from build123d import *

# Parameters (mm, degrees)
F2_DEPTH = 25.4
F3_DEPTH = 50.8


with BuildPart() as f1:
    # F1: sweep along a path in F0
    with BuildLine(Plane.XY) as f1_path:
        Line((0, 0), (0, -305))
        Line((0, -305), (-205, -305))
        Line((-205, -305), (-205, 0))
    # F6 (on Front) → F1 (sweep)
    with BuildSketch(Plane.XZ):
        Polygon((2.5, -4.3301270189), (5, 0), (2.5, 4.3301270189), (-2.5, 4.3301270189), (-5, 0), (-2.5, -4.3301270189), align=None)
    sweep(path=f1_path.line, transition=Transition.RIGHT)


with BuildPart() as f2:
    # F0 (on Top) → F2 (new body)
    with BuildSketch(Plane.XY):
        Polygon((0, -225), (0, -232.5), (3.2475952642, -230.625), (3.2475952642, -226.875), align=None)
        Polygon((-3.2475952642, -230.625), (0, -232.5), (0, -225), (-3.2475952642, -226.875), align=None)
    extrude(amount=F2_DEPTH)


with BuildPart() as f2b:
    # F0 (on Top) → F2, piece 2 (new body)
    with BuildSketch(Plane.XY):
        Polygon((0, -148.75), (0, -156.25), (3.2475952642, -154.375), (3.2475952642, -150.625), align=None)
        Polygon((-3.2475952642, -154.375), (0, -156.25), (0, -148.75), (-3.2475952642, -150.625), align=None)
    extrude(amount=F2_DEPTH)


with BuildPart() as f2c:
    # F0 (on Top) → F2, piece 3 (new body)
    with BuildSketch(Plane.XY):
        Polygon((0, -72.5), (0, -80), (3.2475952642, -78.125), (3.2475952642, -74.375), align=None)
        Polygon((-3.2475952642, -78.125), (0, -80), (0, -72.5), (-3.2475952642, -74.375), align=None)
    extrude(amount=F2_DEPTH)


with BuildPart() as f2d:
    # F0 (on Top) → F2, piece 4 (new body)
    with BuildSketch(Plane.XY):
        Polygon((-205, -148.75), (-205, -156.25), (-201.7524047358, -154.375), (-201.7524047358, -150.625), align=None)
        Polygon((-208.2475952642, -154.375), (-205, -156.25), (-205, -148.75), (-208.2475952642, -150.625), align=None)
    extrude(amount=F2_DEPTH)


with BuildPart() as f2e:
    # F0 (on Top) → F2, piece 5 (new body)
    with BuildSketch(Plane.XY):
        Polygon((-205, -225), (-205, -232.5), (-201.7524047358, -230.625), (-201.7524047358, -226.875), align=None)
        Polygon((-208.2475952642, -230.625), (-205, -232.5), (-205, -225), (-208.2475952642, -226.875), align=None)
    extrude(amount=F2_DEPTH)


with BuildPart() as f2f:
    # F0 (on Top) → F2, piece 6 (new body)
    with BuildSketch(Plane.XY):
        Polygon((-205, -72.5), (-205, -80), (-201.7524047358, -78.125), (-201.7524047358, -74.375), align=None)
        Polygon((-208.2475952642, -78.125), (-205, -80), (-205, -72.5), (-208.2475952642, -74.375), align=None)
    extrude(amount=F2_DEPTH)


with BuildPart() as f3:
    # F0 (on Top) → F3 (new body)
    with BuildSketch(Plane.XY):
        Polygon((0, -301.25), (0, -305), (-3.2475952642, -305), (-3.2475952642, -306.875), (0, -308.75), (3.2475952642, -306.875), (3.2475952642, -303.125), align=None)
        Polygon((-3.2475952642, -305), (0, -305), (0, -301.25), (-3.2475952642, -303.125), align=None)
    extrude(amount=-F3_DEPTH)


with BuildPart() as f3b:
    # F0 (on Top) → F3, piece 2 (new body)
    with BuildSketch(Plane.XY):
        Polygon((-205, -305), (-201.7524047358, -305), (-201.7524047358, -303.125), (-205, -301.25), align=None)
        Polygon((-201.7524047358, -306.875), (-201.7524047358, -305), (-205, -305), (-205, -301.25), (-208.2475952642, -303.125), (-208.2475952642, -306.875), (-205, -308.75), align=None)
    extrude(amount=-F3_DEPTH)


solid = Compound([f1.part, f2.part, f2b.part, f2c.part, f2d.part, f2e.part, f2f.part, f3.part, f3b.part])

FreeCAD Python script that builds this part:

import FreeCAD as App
import Part
import Sketcher

V = App.Vector
Q = App.Units.Quantity


def add_polygon(sketch, points):
    """Adds a closed chain of lines whose ends are joined by coincident constraints."""
    first, n = sketch.GeometryCount, len(points)
    for a, b in zip(points, points[1:] + points[:1]):
        sketch.addGeometry(Part.LineSegment(App.Vector(*a, 0), App.Vector(*b, 0)), False)
    for i in range(n):
        sketch.addConstraint(Sketcher.Constraint("Coincident", first + i, 2, first + (i + 1) % n, 1))

doc = App.newDocument("Part")
body = doc.addObject("PartDesign::Body", "Body")

sketch1 = body.newObject("Sketcher::SketchObject", "Sketch")
sketch1.AttachmentSupport = (doc.getObject("XZ_Plane"), [""])
sketch1.MapMode = "FlatFace"
add_polygon(sketch1, [(2, -4), (5, 0), (2, 4), (-2, 4), (-5, 0), (-2, -4)])
sketch1.addConstraint(Sketcher.Constraint("Horizontal", 2))
sketch1.addConstraint(Sketcher.Constraint("Horizontal", 5))
sketch1.addConstraint(Sketcher.Constraint("Symmetric", 0, 2, 3, 2, -1, 1))
sketch1.addConstraint(Sketcher.Constraint("Symmetric", 1, 2, 4, 2, -1, 1))
sketch1.addConstraint(Sketcher.Constraint("PointOnObject", 0, 2, -1))
sketch1.addConstraint(Sketcher.Constraint("Parallel", 0, 3))
sketch1.addConstraint(Sketcher.Constraint("Vertical", 2, 2, 4, 2))
sketch1.addConstraint(Sketcher.Constraint("DistanceX", 2, 2, 2, 1, 5.0))
sketch1.addConstraint(Sketcher.Constraint("Angle", 0, Q("60 deg")))
sketch1.addConstraint(Sketcher.Constraint("Distance", 0, 5.0))

sketch2 = body.newObject("Sketcher::SketchObject", "Sketch001")
sketch2.AttachmentSupport = (doc.getObject("XY_Plane"), [""])
sketch2.MapMode = "FlatFace"
sketch2.addGeometry(Part.LineSegment(V(0, 0, 0), V(0, -305, 0)), False)
sketch2.addGeometry(Part.LineSegment(V(0, -305, 0), V(-205, -305, 0)), False)
sketch2.addGeometry(Part.LineSegment(V(-205, -305, 0), V(-205, 0, 0)), False)
sketch2.addConstraint(Sketcher.Constraint("Coincident", 0, 2, 1, 1))
sketch2.addConstraint(Sketcher.Constraint("Coincident", 1, 2, 2, 1))
sketch2.addConstraint(Sketcher.Constraint("Vertical", 0))
sketch2.addConstraint(Sketcher.Constraint("Horizontal", 1))
sketch2.addConstraint(Sketcher.Constraint("Vertical", 2))
sketch2.addConstraint(Sketcher.Constraint("Coincident", 0, 1, -1, 1))
sketch2.addConstraint(Sketcher.Constraint("PointOnObject", 2, 2, -1))
sketch2.addConstraint(Sketcher.Constraint("DistanceX", 1, 2, 1, 1, 205.0))
sketch2.addConstraint(Sketcher.Constraint("DistanceY", 0, 2, 0, 1, 305.0))
doc.recompute()

additivepipe = body.newObject("PartDesign::AdditivePipe", "AdditivePipe")
additivepipe.Profile = sketch1
additivepipe.Spine = (sketch2, ["Edge1", "Edge2", "Edge3"])
additivepipe.Transition = "Right corner"
body2 = doc.addObject("PartDesign::Body", "Body001")

sketch3 = body2.newObject("Sketcher::SketchObject", "Sketch002")
sketch3.AttachmentSupport = (doc.getObject("XY_Plane001"), [""])
sketch3.MapMode = "FlatFace"
add_polygon(sketch3, [(0, -232.5), (3.2, -230.6), (3.2, -226.9), (0, -225), (-3.2, -226.9), (-3.2, -230.6)])
sketch3.addConstraint(Sketcher.Constraint("Vertical", 1))
sketch3.addConstraint(Sketcher.Constraint("Vertical", 4))
sketch3.addConstraint(Sketcher.Constraint("Symmetric", 1, 2, 3, 2, -2))
sketch3.addConstraint(Sketcher.Constraint("PointOnObject", 2, 2, -2))
sketch3.addConstraint(Sketcher.Constraint("PointOnObject", 5, 2, -2))
sketch3.addConstraint(Sketcher.Constraint("Parallel", 0, 3))
sketch3.addConstraint(Sketcher.Constraint("Parallel", 2, 5))
sketch3.addConstraint(Sketcher.Constraint("Angle", 0, Q("30 deg")))
sketch3.addConstraint(Sketcher.Constraint("DistanceY", 2, 2, -1, 1, 225.0))
sketch3.addConstraint(Sketcher.Constraint("DistanceY", 1, 1, 1, 2, 3.75))
sketch3.addConstraint(Sketcher.Constraint("DistanceY", 5, 2, -1, 1, 232.5))
pad1 = body2.newObject("PartDesign::Pad", "Pad")
pad1.Profile = sketch3
pad1.Length = 25.4
body3 = doc.addObject("PartDesign::Body", "Body002")

sketch4 = body3.newObject("Sketcher::SketchObject", "Sketch003")
sketch4.AttachmentSupport = (doc.getObject("XY_Plane002"), [""])
sketch4.MapMode = "FlatFace"
add_polygon(sketch4, [(0, -156.2), (3.2, -154.4), (3.2, -150.6), (0, -148.8), (-3.2, -150.6), (-3.2, -154.4)])
sketch4.addConstraint(Sketcher.Constraint("Vertical", 1))
sketch4.addConstraint(Sketcher.Constraint("Vertical", 4))
sketch4.addConstraint(Sketcher.Constraint("Symmetric", 1, 2, 3, 2, -2))
sketch4.addConstraint(Sketcher.Constraint("PointOnObject", 2, 2, -2))
sketch4.addConstraint(Sketcher.Constraint("PointOnObject", 5, 2, -2))
sketch4.addConstraint(Sketcher.Constraint("Parallel", 0, 3))
sketch4.addConstraint(Sketcher.Constraint("Parallel", 2, 5))
sketch4.addConstraint(Sketcher.Constraint("Angle", 0, Q("30 deg")))
sketch4.addConstraint(Sketcher.Constraint("DistanceY", 1, 1, 1, 2, 3.75))
sketch4.addConstraint(Sketcher.Constraint("DistanceY", 5, 2, 2, 2, 7.5))
sketch4.addConstraint(Sketcher.Constraint("DistanceY", 2, 2, -1, 1, 148.75))
pad2 = body3.newObject("PartDesign::Pad", "Pad001")
pad2.Profile = sketch4
pad2.Length = 25.4
body4 = doc.addObject("PartDesign::Body", "Body003")

sketch5 = body4.newObject("Sketcher::SketchObject", "Sketch004")
sketch5.AttachmentSupport = (doc.getObject("XY_Plane003"), [""])
sketch5.MapMode = "FlatFace"
add_polygon(sketch5, [(0, -80), (3.2, -78.1), (3.2, -74.4), (0, -72.5), (-3.2, -74.4), (-3.2, -78.1)])
sketch5.addConstraint(Sketcher.Constraint("Vertical", 1))
sketch5.addConstraint(Sketcher.Constraint("Vertical", 4))
sketch5.addConstraint(Sketcher.Constraint("Symmetric", 1, 2, 3, 2, -2))
sketch5.addConstraint(Sketcher.Constraint("PointOnObject", 2, 2, -2))
sketch5.addConstraint(Sketcher.Constraint("PointOnObject", 5, 2, -2))
sketch5.addConstraint(Sketcher.Constraint("Parallel", 0, 3))
sketch5.addConstraint(Sketcher.Constraint("Parallel", 2, 5))
sketch5.addConstraint(Sketcher.Constraint("Angle", 0, Q("30 deg")))
sketch5.addConstraint(Sketcher.Constraint("DistanceY", 5, 2, -1, 1, 80.0))
sketch5.addConstraint(Sketcher.Constraint("DistanceY", 1, 1, 1, 2, 3.75))
sketch5.addConstraint(Sketcher.Constraint("DistanceY", 2, 2, -1, 1, 72.5))
pad3 = body4.newObject("PartDesign::Pad", "Pad002")
pad3.Profile = sketch5
pad3.Length = 25.4
body5 = doc.addObject("PartDesign::Body", "Body004")

sketch6 = body5.newObject("Sketcher::SketchObject", "Sketch005")
sketch6.AttachmentSupport = (doc.getObject("XY_Plane004"), [""])
sketch6.MapMode = "FlatFace"
add_polygon(sketch6, [(-205, -156.2), (-201.8, -154.4), (-201.8, -150.6), (-205, -148.8), (-208.2, -150.6), (-208.2, -154.4)])
sketch6.addConstraint(Sketcher.Constraint("Vertical", 1))
sketch6.addConstraint(Sketcher.Constraint("Vertical", 4))
sketch6.addConstraint(Sketcher.Constraint("Parallel", 0, 3))
sketch6.addConstraint(Sketcher.Constraint("Parallel", 2, 5))
sketch6.addConstraint(Sketcher.Constraint("Horizontal", 1, 2, 3, 2))
sketch6.addConstraint(Sketcher.Constraint("Horizontal", 0, 2, 4, 2))
sketch6.addConstraint(Sketcher.Constraint("Vertical", 2, 2, 5, 2))
sketch6.addConstraint(Sketcher.Constraint("Angle", 0, Q("30 deg")))
sketch6.addConstraint(Sketcher.Constraint("DistanceX", 2, 2, -1, 1, 205.0))
sketch6.addConstraint(Sketcher.Constraint("DistanceY", 1, 1, 1, 2, 3.75))
sketch6.addConstraint(Sketcher.Constraint("DistanceY", 5, 2, 2, 2, 7.5))
sketch6.addConstraint(Sketcher.Constraint("DistanceY", 2, 2, -1, 1, 148.75))
pad4 = body5.newObject("PartDesign::Pad", "Pad003")
pad4.Profile = sketch6
pad4.Length = 25.4
body6 = doc.addObject("PartDesign::Body", "Body005")

sketch7 = body6.newObject("Sketcher::SketchObject", "Sketch006")
sketch7.AttachmentSupport = (doc.getObject("XY_Plane005"), [""])
sketch7.MapMode = "FlatFace"
add_polygon(sketch7, [(-205, -232.5), (-201.8, -230.6), (-201.8, -226.9), (-205, -225), (-208.2, -226.9), (-208.2, -230.6)])
sketch7.addConstraint(Sketcher.Constraint("Vertical", 1))
sketch7.addConstraint(Sketcher.Constraint("Vertical", 4))
sketch7.addConstraint(Sketcher.Constraint("Parallel", 0, 3))
sketch7.addConstraint(Sketcher.Constraint("Parallel", 2, 5))
sketch7.addConstraint(Sketcher.Constraint("Horizontal", 1, 2, 3, 2))
sketch7.addConstraint(Sketcher.Constraint("Horizontal", 0, 2, 4, 2))
sketch7.addConstraint(Sketcher.Constraint("Vertical", 2, 2, 5, 2))
sketch7.addConstraint(Sketcher.Constraint("Angle", 0, Q("30 deg")))
sketch7.addConstraint(Sketcher.Constraint("DistanceX", 2, 2, -1, 1, 205.0))
sketch7.addConstraint(Sketcher.Constraint("DistanceY", 2, 2, -1, 1, 225.0))
sketch7.addConstraint(Sketcher.Constraint("DistanceY", 1, 1, 1, 2, 3.75))
sketch7.addConstraint(Sketcher.Constraint("DistanceY", 5, 2, -1, 1, 232.5))
pad5 = body6.newObject("PartDesign::Pad", "Pad004")
pad5.Profile = sketch7
pad5.Length = 25.4
body7 = doc.addObject("PartDesign::Body", "Body006")

sketch8 = body7.newObject("Sketcher::SketchObject", "Sketch007")
sketch8.AttachmentSupport = (doc.getObject("XY_Plane006"), [""])
sketch8.MapMode = "FlatFace"
add_polygon(sketch8, [(-205, -80), (-201.8, -78.1), (-201.8, -74.4), (-205, -72.5), (-208.2, -74.4), (-208.2, -78.1)])
sketch8.addConstraint(Sketcher.Constraint("Vertical", 1))
sketch8.addConstraint(Sketcher.Constraint("Vertical", 4))
sketch8.addConstraint(Sketcher.Constraint("Parallel", 0, 3))
sketch8.addConstraint(Sketcher.Constraint("Parallel", 2, 5))
sketch8.addConstraint(Sketcher.Constraint("Horizontal", 1, 2, 3, 2))
sketch8.addConstraint(Sketcher.Constraint("Horizontal", 0, 2, 4, 2))
sketch8.addConstraint(Sketcher.Constraint("Vertical", 2, 2, 5, 2))
sketch8.addConstraint(Sketcher.Constraint("Angle", 0, Q("30 deg")))
sketch8.addConstraint(Sketcher.Constraint("DistanceX", 2, 2, -1, 1, 205.0))
sketch8.addConstraint(Sketcher.Constraint("DistanceY", 5, 2, -1, 1, 80.0))
sketch8.addConstraint(Sketcher.Constraint("DistanceY", 1, 1, 1, 2, 3.75))
sketch8.addConstraint(Sketcher.Constraint("DistanceY", 2, 2, -1, 1, 72.5))
pad6 = body7.newObject("PartDesign::Pad", "Pad005")
pad6.Profile = sketch8
pad6.Length = 25.4
body8 = doc.addObject("PartDesign::Body", "Body007")

sketch9 = body8.newObject("Sketcher::SketchObject", "Sketch008")
sketch9.AttachmentSupport = (doc.getObject("XY_Plane007"), [""])
sketch9.MapMode = "FlatFace"
add_polygon(sketch9, [(-3.2, -306.9), (0, -308.8), (3.2, -306.9), (3.2, -303.1), (0, -301.2), (-3.2, -303.1)])
sketch9.addConstraint(Sketcher.Constraint("Vertical", 2))
sketch9.addConstraint(Sketcher.Constraint("Vertical", 5))
sketch9.addConstraint(Sketcher.Constraint("Symmetric", 2, 2, 4, 2, -2))
sketch9.addConstraint(Sketcher.Constraint("PointOnObject", 0, 2, -2))
sketch9.addConstraint(Sketcher.Constraint("PointOnObject", 3, 2, -2))
sketch9.addConstraint(Sketcher.Constraint("Parallel", 0, 3))
sketch9.addConstraint(Sketcher.Constraint("Parallel", 1, 4))
sketch9.addConstraint(Sketcher.Constraint("Angle", 0, Q("-30 deg")))
sketch9.addConstraint(Sketcher.Constraint("DistanceY", 2, 1, 2, 2, 3.75))
sketch9.addConstraint(Sketcher.Constraint("DistanceY", 0, 2, 3, 2, 7.5))
sketch9.addConstraint(Sketcher.Constraint("DistanceY", 0, 2, -1, 1, 308.75))
pad7 = body8.newObject("PartDesign::Pad", "Pad006")
pad7.Profile = sketch9
pad7.Length = 50.8
pad7.Reversed = True
body9 = doc.addObject("PartDesign::Body", "Body008")

sketch10 = body9.newObject("Sketcher::SketchObject", "Sketch009")
sketch10.AttachmentSupport = (doc.getObject("XY_Plane008"), [""])
sketch10.MapMode = "FlatFace"
add_polygon(sketch10, [(-201.8, -303.1), (-205, -301.2), (-208.2, -303.1), (-208.2, -306.9), (-205, -308.8), (-201.8, -306.9)])
sketch10.addConstraint(Sketcher.Constraint("Vertical", 2))
sketch10.addConstraint(Sketcher.Constraint("Vertical", 5))
sketch10.addConstraint(Sketcher.Constraint("Parallel", 0, 3))
sketch10.addConstraint(Sketcher.Constraint("Parallel", 1, 4))
sketch10.addConstraint(Sketcher.Constraint("Horizontal", 2, 2, 4, 2))
sketch10.addConstraint(Sketcher.Constraint("Horizontal", 1, 2, 5, 2))
sketch10.addConstraint(Sketcher.Constraint("Vertical", 0, 2, 3, 2))
sketch10.addConstraint(Sketcher.Constraint("Angle", 0, Q("150 deg")))
sketch10.addConstraint(Sketcher.Constraint("DistanceX", 0, 2, -1, 1, 205.0))
sketch10.addConstraint(Sketcher.Constraint("DistanceY", 2, 2, 2, 1, 3.75))
sketch10.addConstraint(Sketcher.Constraint("DistanceY", 3, 2, 0, 2, 7.5))
sketch10.addConstraint(Sketcher.Constraint("DistanceY", 0, 2, -1, 1, 301.25))
pad8 = body9.newObject("PartDesign::Pad", "Pad007")
pad8.Profile = sketch10
pad8.Length = 50.8
pad8.Reversed = True

doc.recompute()
